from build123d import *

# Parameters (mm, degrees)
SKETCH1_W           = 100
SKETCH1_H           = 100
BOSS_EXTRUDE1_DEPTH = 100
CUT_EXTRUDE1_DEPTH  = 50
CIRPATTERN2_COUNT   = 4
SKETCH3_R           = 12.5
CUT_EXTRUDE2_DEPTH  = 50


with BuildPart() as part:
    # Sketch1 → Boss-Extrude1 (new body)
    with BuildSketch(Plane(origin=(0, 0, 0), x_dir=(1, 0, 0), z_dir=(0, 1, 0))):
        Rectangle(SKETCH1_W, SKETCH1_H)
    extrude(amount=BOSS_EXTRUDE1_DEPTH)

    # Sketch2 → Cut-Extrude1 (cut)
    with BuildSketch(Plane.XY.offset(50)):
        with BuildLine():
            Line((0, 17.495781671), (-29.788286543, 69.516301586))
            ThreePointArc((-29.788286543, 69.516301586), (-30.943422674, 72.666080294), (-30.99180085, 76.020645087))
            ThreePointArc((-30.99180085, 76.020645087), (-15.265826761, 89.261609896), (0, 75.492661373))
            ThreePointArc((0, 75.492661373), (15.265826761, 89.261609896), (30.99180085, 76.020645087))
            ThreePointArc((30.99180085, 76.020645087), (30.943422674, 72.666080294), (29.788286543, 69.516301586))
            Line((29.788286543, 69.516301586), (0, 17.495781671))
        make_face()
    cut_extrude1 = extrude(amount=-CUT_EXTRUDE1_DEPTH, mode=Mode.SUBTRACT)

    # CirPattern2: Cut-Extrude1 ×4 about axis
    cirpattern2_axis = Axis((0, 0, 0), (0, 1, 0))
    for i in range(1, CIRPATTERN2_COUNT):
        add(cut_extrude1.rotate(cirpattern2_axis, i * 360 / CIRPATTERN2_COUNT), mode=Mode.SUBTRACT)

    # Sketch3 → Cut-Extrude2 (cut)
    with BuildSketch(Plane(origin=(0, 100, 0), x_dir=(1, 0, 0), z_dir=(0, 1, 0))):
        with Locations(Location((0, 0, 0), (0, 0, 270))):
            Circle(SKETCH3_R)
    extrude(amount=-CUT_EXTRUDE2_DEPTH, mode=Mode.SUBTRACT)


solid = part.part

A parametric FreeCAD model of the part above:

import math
import FreeCAD as App
import Part
import Sketcher


def add_polygon(sketch, points):
    """Adds a closed chain of lines whose ends are joined by coincident constraints."""
    first, n = sketch.GeometryCount, len(points)
    for a, b in zip(points, points[1:] + points[:1]):
        sketch.addGeometry(Part.LineSegment(App.Vector(*a, 0), App.Vector(*b, 0)), False)
    for i in range(n):
        sketch.addConstraint(Sketcher.Constraint("Coincident", first + i, 2, first + (i + 1) % n, 1))

doc = App.newDocument("Part")
body = doc.addObject("PartDesign::Body", "Body")

sketch1 = body.newObject("Sketcher::SketchObject", "Sketch")
sketch1.AttachmentSupport = (doc.getObject("XZ_Plane"), [""])
sketch1.MapMode = "FlatFace"
add_polygon(sketch1, [(-50, -50), (-50, 50), (50, 50), (50, -50)])
sketch1.addConstraint([
    Sketcher.Constraint("Vertical", 0),
    Sketcher.Constraint("Horizontal", 1),
    Sketcher.Constraint("Vertical", 2),
    Sketcher.Constraint("Horizontal", 3),
    Sketcher.Constraint("Symmetric", 0, 2, 2, 2, -1, 1),
    Sketcher.Constraint("Equal", 3, 0),
    Sketcher.Constraint("DistanceX", 1, 1, 1, 2, 100.0),
])
pad1 = body.newObject("PartDesign::Pad", "Pad")
pad1.Profile = sketch1
pad1.Length = 100
pad1.Reversed = True

sketch2 = body.newObject("Sketcher::SketchObject", "Sketch001")
sketch2.AttachmentSupport = (doc.getObject("XY_Plane"), [""])
sketch2.MapMode = "FlatFace"
sketch2.AttachmentOffset = App.Placement(App.Vector(0, 0, 50), App.Rotation())
sketch2.addGeometry([
    Part.LineSegment(App.Vector(-29.788287, 69.516302, 0), App.Vector(0, 17.495782, 0)),
    Part.LineSegment(App.Vector(0, 17.495782, 0), App.Vector(29.788287, 69.516302, 0)),
    Part.ArcOfCircle(Part.Circle(App.Vector(21.110334, 74.48552, 0), App.Vector(0, 0, 1), 10), math.radians(-29.796561), math.radians(8.830535)),
    Part.ArcOfCircle(Part.Circle(App.Vector(15.532319, 73.618954, 0), App.Vector(0, 0, 1), 15.644926), math.radians(8.830535), math.radians(173.121486)),
    Part.ArcOfCircle(Part.Circle(App.Vector(-15.532319, 73.618954, 0), App.Vector(0, 0, 1), 15.644926), math.radians(6.878514), math.radians(171.169465)),
    Part.ArcOfCircle(Part.Circle(App.Vector(-21.110334, 74.48552, 0), App.Vector(0, 0, 1), 10), math.radians(171.169465), math.radians(209.796561)),
], False)
sketch2.addConstraint([
    Sketcher.Constraint("Coincident", 0, 2, 1, 1),
    Sketcher.Constraint("Tangent", 1, 2, 2, 1),
    Sketcher.Constraint("Tangent", 2, 2, 3, 1),
    Sketcher.Constraint("Coincident", 3, 2, 4, 1),
    Sketcher.Constraint("Tangent", 4, 2, 5, 1),
    Sketcher.Constraint("Tangent", 5, 2, 0, 1),
    Sketcher.Constraint("Equal", 3, 4),
    Sketcher.Constraint("Equal", 2, 5),
    Sketcher.Constraint("Symmetric", 3, 3, 4, 3, -2),
    Sketcher.Constraint("Symmetric", 1, 2, 5, 2, -2),
    Sketcher.Constraint("Radius", 2, 10.0),
    Sketcher.Constraint("Radius", 3, 15.644926),
    Sketcher.Constraint("DistanceY", -1, 1, 1, 2, 69.516302),
    Sketcher.Constraint("DistanceX", -1, 1, 2, 2, 30.991801),
    Sketcher.Constraint("DistanceY", -1, 1, 2, 3, 74.48552),
    Sketcher.Constraint("DistanceX", -1, 1, 3, 3, 15.532319),
])
pocket1 = body.newObject("PartDesign::Pocket", "Pocket")
pocket1.Profile = sketch2
pocket1.Length = 50
doc.recompute()

polarpattern = body.newObject("PartDesign::PolarPattern", "PolarPattern")
polarpattern.Originals = [pocket1]
polarpattern.Axis = (doc.getObject("Y_Axis"), [""])
polarpattern.Angle = 360
polarpattern.Occurrences = 4
body.Tip = polarpattern

sketch3 = body.newObject("Sketcher::SketchObject", "Sketch002")
sketch3.AttachmentSupport = (doc.getObject("XZ_Plane"), [""])
sketch3.MapMode = "FlatFace"
sketch3.AttachmentOffset = App.Placement(App.Vector(0, 0, -100), App.Rotation())
sketch3.addGeometry(Part.Circle(App.Vector(0, 0, 0), App.Vector(0, 0, 1), 12.5), False)
sketch3.addConstraint([
    Sketcher.Constraint("Coincident", 0, 3, -1, 1),
    Sketcher.Constraint("Diameter", 0, 25.0),
])
pocket2 = body.newObject("PartDesign::Pocket", "Pocket001")
pocket2.Profile = sketch3
pocket2.Length = 50
pocket2.Reversed = True

doc.recompute()
